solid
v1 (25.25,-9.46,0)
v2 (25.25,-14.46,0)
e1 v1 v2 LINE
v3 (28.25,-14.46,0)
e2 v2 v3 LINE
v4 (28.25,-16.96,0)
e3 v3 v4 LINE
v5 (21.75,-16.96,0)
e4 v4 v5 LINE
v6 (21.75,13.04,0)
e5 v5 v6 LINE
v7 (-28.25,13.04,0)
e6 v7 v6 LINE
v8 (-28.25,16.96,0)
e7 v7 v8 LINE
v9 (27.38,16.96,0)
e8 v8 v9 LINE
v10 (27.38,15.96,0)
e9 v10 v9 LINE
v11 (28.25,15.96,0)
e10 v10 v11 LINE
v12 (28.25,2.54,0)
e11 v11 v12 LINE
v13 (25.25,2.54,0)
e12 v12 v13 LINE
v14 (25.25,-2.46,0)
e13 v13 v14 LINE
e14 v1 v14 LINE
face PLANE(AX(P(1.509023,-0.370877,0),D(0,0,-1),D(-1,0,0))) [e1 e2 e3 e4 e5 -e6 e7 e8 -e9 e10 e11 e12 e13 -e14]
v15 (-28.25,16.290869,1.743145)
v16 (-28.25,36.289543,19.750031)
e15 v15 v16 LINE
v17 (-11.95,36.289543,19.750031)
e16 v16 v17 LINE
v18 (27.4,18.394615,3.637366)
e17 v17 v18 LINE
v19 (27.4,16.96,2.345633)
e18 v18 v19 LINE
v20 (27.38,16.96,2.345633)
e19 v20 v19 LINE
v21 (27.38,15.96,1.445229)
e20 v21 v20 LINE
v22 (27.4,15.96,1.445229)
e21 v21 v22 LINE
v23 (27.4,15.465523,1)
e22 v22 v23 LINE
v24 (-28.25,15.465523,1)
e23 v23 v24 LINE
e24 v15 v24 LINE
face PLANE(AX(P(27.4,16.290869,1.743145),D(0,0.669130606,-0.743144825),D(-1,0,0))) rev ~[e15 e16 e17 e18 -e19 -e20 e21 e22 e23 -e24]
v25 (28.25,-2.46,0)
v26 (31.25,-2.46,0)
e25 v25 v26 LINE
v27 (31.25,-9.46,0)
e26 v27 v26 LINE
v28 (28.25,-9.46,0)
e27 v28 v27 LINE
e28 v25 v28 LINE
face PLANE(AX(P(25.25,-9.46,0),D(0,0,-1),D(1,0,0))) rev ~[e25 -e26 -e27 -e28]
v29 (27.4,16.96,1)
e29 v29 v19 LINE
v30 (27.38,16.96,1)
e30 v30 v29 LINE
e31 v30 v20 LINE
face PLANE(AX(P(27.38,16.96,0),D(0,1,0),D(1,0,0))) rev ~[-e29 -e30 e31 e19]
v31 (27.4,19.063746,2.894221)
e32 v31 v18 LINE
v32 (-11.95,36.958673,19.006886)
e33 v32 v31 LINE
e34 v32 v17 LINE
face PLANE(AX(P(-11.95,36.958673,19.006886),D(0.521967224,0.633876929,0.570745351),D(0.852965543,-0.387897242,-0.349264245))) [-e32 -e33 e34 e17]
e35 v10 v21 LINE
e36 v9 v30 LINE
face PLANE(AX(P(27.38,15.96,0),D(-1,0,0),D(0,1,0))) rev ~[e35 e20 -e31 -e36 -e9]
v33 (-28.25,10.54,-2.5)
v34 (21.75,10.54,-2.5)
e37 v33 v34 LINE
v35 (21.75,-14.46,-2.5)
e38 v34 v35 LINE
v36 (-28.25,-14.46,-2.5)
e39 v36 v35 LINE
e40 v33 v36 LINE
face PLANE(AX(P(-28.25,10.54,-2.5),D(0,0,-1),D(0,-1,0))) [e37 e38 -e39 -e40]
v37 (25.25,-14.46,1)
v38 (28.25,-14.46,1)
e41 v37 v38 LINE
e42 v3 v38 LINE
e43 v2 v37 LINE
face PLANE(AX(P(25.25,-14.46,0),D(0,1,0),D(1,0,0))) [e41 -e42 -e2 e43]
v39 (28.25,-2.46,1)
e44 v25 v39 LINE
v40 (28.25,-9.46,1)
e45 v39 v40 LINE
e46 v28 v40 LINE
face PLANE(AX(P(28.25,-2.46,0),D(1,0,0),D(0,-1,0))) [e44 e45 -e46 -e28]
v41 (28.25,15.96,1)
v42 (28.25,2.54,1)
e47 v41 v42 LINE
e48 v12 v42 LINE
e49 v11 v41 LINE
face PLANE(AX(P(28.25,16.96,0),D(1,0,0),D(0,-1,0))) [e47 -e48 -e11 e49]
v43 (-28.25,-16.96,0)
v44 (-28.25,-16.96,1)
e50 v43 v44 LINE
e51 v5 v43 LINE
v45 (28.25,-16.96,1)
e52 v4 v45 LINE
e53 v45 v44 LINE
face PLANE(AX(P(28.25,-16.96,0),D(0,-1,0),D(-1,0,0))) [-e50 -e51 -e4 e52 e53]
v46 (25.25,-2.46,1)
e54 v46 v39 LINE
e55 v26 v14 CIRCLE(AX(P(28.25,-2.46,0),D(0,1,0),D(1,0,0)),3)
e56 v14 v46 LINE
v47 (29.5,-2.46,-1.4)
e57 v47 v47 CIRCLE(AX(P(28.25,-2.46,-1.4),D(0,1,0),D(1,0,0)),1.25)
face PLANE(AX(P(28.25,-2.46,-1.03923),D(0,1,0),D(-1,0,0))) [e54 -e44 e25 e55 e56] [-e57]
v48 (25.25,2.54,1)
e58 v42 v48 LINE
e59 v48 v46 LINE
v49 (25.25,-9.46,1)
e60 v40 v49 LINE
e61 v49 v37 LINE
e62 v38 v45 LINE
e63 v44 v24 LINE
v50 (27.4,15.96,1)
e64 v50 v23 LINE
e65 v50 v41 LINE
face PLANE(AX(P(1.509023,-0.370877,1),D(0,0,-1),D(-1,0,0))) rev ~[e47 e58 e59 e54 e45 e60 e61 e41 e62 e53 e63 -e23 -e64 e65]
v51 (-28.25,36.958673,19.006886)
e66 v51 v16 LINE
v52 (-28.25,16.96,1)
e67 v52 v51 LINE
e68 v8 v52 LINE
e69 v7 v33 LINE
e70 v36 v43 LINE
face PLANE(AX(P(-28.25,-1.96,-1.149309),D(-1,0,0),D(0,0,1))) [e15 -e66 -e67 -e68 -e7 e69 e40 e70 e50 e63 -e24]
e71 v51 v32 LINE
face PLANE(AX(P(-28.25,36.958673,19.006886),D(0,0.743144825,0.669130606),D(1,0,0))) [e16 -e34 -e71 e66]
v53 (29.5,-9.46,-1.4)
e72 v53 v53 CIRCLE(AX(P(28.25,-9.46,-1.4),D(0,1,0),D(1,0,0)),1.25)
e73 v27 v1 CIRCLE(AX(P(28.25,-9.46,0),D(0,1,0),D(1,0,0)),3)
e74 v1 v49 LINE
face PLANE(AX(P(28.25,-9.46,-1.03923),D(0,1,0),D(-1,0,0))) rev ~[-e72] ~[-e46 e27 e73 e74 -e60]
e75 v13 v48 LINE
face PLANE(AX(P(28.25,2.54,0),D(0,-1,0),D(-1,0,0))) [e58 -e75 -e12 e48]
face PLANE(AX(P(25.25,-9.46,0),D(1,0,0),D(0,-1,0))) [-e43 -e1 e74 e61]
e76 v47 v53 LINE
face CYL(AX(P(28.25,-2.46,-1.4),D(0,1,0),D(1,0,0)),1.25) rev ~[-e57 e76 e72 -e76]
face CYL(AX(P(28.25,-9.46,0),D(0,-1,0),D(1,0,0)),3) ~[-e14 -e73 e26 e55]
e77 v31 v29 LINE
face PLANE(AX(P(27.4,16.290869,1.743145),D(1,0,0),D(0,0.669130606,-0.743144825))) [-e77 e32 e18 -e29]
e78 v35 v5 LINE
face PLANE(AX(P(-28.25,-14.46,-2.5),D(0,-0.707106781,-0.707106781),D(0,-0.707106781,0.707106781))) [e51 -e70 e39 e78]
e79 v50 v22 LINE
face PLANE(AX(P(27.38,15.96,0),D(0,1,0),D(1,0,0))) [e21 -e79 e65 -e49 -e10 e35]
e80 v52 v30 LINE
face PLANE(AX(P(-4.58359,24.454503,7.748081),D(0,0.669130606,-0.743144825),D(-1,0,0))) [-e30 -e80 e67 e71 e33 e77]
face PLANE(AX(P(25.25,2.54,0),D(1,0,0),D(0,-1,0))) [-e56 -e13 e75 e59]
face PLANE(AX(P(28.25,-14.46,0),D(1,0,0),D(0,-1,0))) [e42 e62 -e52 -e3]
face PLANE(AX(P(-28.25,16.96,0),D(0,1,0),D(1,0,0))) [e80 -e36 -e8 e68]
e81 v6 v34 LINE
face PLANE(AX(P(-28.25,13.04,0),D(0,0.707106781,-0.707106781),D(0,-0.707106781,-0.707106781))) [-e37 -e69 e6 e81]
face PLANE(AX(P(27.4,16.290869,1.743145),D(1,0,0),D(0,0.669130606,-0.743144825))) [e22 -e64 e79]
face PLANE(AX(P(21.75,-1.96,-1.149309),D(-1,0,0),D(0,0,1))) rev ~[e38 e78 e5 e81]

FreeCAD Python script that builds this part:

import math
import FreeCAD as App
import Part
import Sketcher

doc = App.newDocument("Part")
body = doc.addObject("PartDesign::Body", "Body")

# Sketch on XY plane
sketch1 = body.newObject("Sketcher::SketchObject", "Sketch")
sketch1.AttachmentSupport = (doc.getObject("XY_Plane"), [""])
sketch1.MapMode = "FlatFace"
sketch1.addGeometry([
    Part.LineSegment(App.Vector(-28.25, 16.96, 0), App.Vector(-28.25, -16.96, 0)),  # 0
    Part.LineSegment(App.Vector(-28.25, -16.96, 0), App.Vector(28.25, -16.96, 0)),  # 1
    Part.LineSegment(App.Vector(28.25, -16.96, 0), App.Vector(28.25, -14.46, 0)),  # 2
    Part.LineSegment(App.Vector(28.25, -14.46, 0), App.Vector(25.25, -14.46, 0)),  # 3
    Part.LineSegment(App.Vector(25.25, -14.46, 0), App.Vector(25.25, -9.46, 0)),  # 4
    Part.LineSegment(App.Vector(25.25, -9.46, 0), App.Vector(28.25, -9.46, 0)),  # 5
    Part.LineSegment(App.Vector(28.25, -9.46, 0), App.Vector(28.25, -2.46, 0)),  # 6
    Part.LineSegment(App.Vector(28.25, -2.46, 0), App.Vector(25.25, -2.46, 0)),  # 7
    Part.LineSegment(App.Vector(25.25, -2.46, 0), App.Vector(25.25, 2.54, 0)),  # 8
    Part.LineSegment(App.Vector(25.25, 2.54, 0), App.Vector(28.25, 2.54, 0)),  # 9
    Part.LineSegment(App.Vector(28.25, 2.54, 0), App.Vector(28.25, 16.96, 0)),  # 10
    Part.LineSegment(App.Vector(28.25, 16.96, 0), App.Vector(-28.25, 16.96, 0)),  # 11
], False)
sketch1.addConstraint([
    Sketcher.Constraint("Coincident", 0, 2, 1, 1),
    Sketcher.Constraint("Coincident", 1, 2, 2, 1),
    Sketcher.Constraint("Coincident", 2, 2, 3, 1),
    Sketcher.Constraint("Coincident", 3, 2, 4, 1),
    Sketcher.Constraint("Coincident", 4, 2, 5, 1),
    Sketcher.Constraint("Coincident", 5, 2, 6, 1),
    Sketcher.Constraint("Coincident", 6, 2, 7, 1),
    Sketcher.Constraint("Coincident", 7, 2, 8, 1),
    Sketcher.Constraint("Coincident", 8, 2, 9, 1),
    Sketcher.Constraint("Coincident", 9, 2, 10, 1),
    Sketcher.Constraint("Coincident", 10, 2, 11, 1),
    Sketcher.Constraint("Coincident", 11, 2, 0, 1),
    Sketcher.Constraint("Vertical", 0),
    Sketcher.Constraint("Horizontal", 1),
    Sketcher.Constraint("Vertical", 2),
    Sketcher.Constraint("Horizontal", 3),
    Sketcher.Constraint("Vertical", 4),
    Sketcher.Constraint("Horizontal", 5),
    Sketcher.Constraint("Vertical", 6),
    Sketcher.Constraint("Horizontal", 7),
    Sketcher.Constraint("Vertical", 8),
    Sketcher.Constraint("Horizontal", 9),
    Sketcher.Constraint("Vertical", 10),
    Sketcher.Constraint("Horizontal", 11),
    Sketcher.Constraint("Symmetric", 0, 2, 10, 2, -1, 1),
    Sketcher.Constraint("Vertical", 2, 2, 5, 2),
    Sketcher.Constraint("Vertical", 4, 2, 7, 2),
    Sketcher.Constraint("Vertical", 6, 2, 9, 2),
    Sketcher.Constraint("Equal", 4, 8),
    Sketcher.Constraint("DistanceX", 3, 2, 3, 1, 3.0),
    Sketcher.Constraint("DistanceY", 4, 1, 4, 2, 5.0),
    Sketcher.Constraint("DistanceY", 6, 1, 6, 2, 7.0),
    Sketcher.Constraint("DistanceX", 1, 1, 1, 2, 56.5),
    Sketcher.Constraint("DistanceY", 2, 1, 2, 2, 2.5),
    Sketcher.Constraint("DistanceY", 0, 2, 0, 1, 33.92),
])
pad1 = body.newObject("PartDesign::Pad", "Pad")
pad1.Profile = sketch1
pad1.Length = 1

# Sketch on YZ plane
sketch2 = body.newObject("Sketcher::SketchObject", "Sketch001")
sketch2.AttachmentSupport = (doc.getObject("YZ_Plane"), [""])
sketch2.MapMode = "FlatFace"
sketch2.AttachmentOffset = App.Placement(App.Vector(0, 0, -28.25), App.Rotation())
sketch2.addGeometry([
    Part.LineSegment(App.Vector(13.04, 0, 0), App.Vector(10.54, -2.5, 0)),
    Part.LineSegment(App.Vector(10.54, -2.5, 0), App.Vector(-14.46, -2.5, 0)),
    Part.LineSegment(App.Vector(-14.46, -2.5, 0), App.Vector(-16.96, 0, 0)),
    Part.LineSegment(App.Vector(-16.96, 0, 0), App.Vector(13.04, 0, 0)),
], False)
sketch2.addConstraint([
    Sketcher.Constraint("Coincident", 0, 2, 1, 1),
    Sketcher.Constraint("Coincident", 1, 2, 2, 1),
    Sketcher.Constraint("Coincident", 2, 2, 3, 1),
    Sketcher.Constraint("Coincident", 3, 2, 0, 1),
    Sketcher.Constraint("Horizontal", 1),
    Sketcher.Constraint("Horizontal", 3),
    Sketcher.Constraint("PointOnObject", 2, 2, -1),
    Sketcher.Constraint("Perpendicular", 0, 2),
    Sketcher.Constraint("Equal", 0, 2),
    Sketcher.Constraint("DistanceX", 1, 2, 1, 1, 25.0),
    Sketcher.Constraint("DistanceX", 3, 1, 3, 2, 30.0),
    Sketcher.Constraint("DistanceX", -1, 1, 0, 2, 10.54),
])
pad2 = body.newObject("PartDesign::Pad", "Pad001")
pad2.Profile = sketch2
pad2.Length = 50

# Sketch on XZ plane
sketch3 = body.newObject("Sketcher::SketchObject", "Sketch002")
sketch3.AttachmentSupport = (doc.getObject("XZ_Plane"), [""])
sketch3.MapMode = "FlatFace"
sketch3.AttachmentOffset = App.Placement(App.Vector(0, 0, 9.46), App.Rotation())
sketch3.addGeometry([
    Part.LineSegment(App.Vector(31.25, 0, 0), App.Vector(25.25, 0, 0)),
    Part.ArcOfCircle(Part.Circle(App.Vector(28.25, 0, 0), App.Vector(0, 0, 1), 3), math.radians(180), math.radians(360)),
], False)
sketch3.addConstraint([
    Sketcher.Constraint("Coincident", 0, 1, 1, 2),
    Sketcher.Constraint("Coincident", 1, 1, 0, 2),
    Sketcher.Constraint("Horizontal", 0),
    Sketcher.Constraint("PointOnObject", 1, 3, -1),
    Sketcher.Constraint("PointOnObject", 0, 1, -1),
    Sketcher.Constraint("Radius", 1, 3.0),
    Sketcher.Constraint("DistanceX", -1, 1, 1, 3, 28.25),
])
pad3 = body.newObject("PartDesign::Pad", "Pad002")
pad3.Profile = sketch3
pad3.Length = 7
pad3.Reversed = True

# Sketch on XZ plane
sketch4 = body.newObject("Sketcher::SketchObject", "Sketch003")
sketch4.AttachmentSupport = (doc.getObject("XZ_Plane"), [""])
sketch4.MapMode = "FlatFace"
sketch4.AttachmentOffset = App.Placement(App.Vector(0, 0, 2.46), App.Rotation())
sketch4.addGeometry(Part.Circle(App.Vector(28.25, -1.4, 0), App.Vector(0, 0, 1), 1.25), False)
sketch4.addConstraint([
    Sketcher.Constraint("Diameter", 0, 2.5),
    Sketcher.Constraint("DistanceY", 0, 3, -1, 1, 1.4),
    Sketcher.Constraint("DistanceX", -1, 1, 0, 3, 28.25),
])
pocket1 = body.newObject("PartDesign::Pocket", "Pocket")
pocket1.Profile = sketch4
pocket1.Length = 7
pocket1.Reversed = True
body2 = doc.addObject("PartDesign::Body", "Body001")

# Sketch on an angled plane
sketch5 = body2.newObject("Sketcher::SketchObject", "Sketch004")
sketch5.Placement = App.Placement(App.Vector(0, 7.096338, -7.881281), App.Rotation(App.Vector(-1, 0, 0), App.Vector(0, 0.743144825, 0.669130606), App.Vector(0, 0.669130606, -0.743144825), "ZXY"))
sketch5.addGeometry([
    Part.LineSegment(App.Vector(28.25, 13.272867, 0), App.Vector(28.25, 40.183736, 0)),  # 0
    Part.LineSegment(App.Vector(28.25, 40.183736, 0), App.Vector(11.95, 40.183736, 0)),  # 1
    Part.LineSegment(App.Vector(11.95, 40.183736, 0), App.Vector(-27.4, 16.103736, 0)),  # 2
    Part.LineSegment(App.Vector(-27.4, 16.103736, 0), App.Vector(-27.4, 13.272867, 0)),  # 3
    Part.LineSegment(App.Vector(-27.4, 13.272867, 0), App.Vector(28.25, 13.272867, 0)),  # 4
], False)
sketch5.addConstraint([
    Sketcher.Constraint("Coincident", 0, 2, 1, 1),
    Sketcher.Constraint("Coincident", 1, 2, 2, 1),
    Sketcher.Constraint("Coincident", 2, 2, 3, 1),
    Sketcher.Constraint("Coincident", 3, 2, 4, 1),
    Sketcher.Constraint("Coincident", 4, 2, 0, 1),
    Sketcher.Constraint("Vertical", 0),
    Sketcher.Constraint("Horizontal", 1),
    Sketcher.Constraint("Vertical", 3),
    Sketcher.Constraint("Horizontal", 4),
    Sketcher.Constraint("DistanceX", 1, 2, 1, 1, 16.3),
    Sketcher.Constraint("DistanceX", 4, 1, 4, 2, 55.65),
    Sketcher.Constraint("DistanceX", 2, 2, -1, 1, 27.4),
    Sketcher.Constraint("DistanceY", 2, 2, 1, 2, 24.08),
    Sketcher.Constraint("DistanceY", 0, 1, 0, 2, 26.910869),
    Sketcher.Constraint("DistanceY", -1, 1, 0, 2, 40.183736),
])
pad4 = body2.newObject("PartDesign::Pad", "Pad003")
pad4.Profile = sketch5
pad4.Length = 1
pad4.Reversed = True
body.AllowCompound = True
doc.recompute()

boolean = body.newObject("PartDesign::Boolean", "Boolean")
boolean.Type = "Fuse"
boolean.addObjects([body2])

# Sketch on an angled plane
sketch6 = body.newObject("Sketcher::SketchObject", "Sketch005")
sketch6.Placement = App.Placement(App.Vector(0, 9.863662, 8.881281), App.Rotation(App.Vector(-1, 0, 0), App.Vector(0, 0.669130606, -0.743144825), App.Vector(0, -0.743144825, -0.669130606), "ZXY"))
sketch6.addGeometry([
    Part.LineSegment(App.Vector(-27.4, 10.60531, 0), App.Vector(-27.4, 9.60531, 0)),
    Part.LineSegment(App.Vector(-27.4, 9.60531, 0), App.Vector(28.25, 9.60531, 0)),
    Part.LineSegment(App.Vector(28.25, 9.60531, 0), App.Vector(28.25, 10.60531, 0)),
    Part.LineSegment(App.Vector(28.25, 10.60531, 0), App.Vector(-27.4, 10.60531, 0)),
], False)
sketch6.addConstraint([
    Sketcher.Constraint("Coincident", 0, 2, 1, 1),
    Sketcher.Constraint("Coincident", 1, 2, 2, 1),
    Sketcher.Constraint("Coincident", 2, 2, 3, 1),
    Sketcher.Constraint("Coincident", 3, 2, 0, 1),
    Sketcher.Constraint("Vertical", 0),
    Sketcher.Constraint("Horizontal", 1),
    Sketcher.Constraint("Vertical", 2),
    Sketcher.Constraint("Horizontal", 3),
    Sketcher.Constraint("DistanceY", 0, 2, 0, 1, 1.0),
    Sketcher.Constraint("DistanceX", 1, 1, 1, 2, 55.65),
    Sketcher.Constraint("DistanceX", 0, 2, -1, 1, 27.4),
    Sketcher.Constraint("DistanceY", -1, 1, 0, 2, 9.60531),
])
pad5 = body.newObject("PartDesign::Pad", "Pad004")
pad5.Profile = sketch6
pad5.Length = 1.110613

# Sketch on XY plane
sketch7 = body.newObject("Sketcher::SketchObject", "Sketch006")
sketch7.AttachmentSupport = (doc.getObject("XY_Plane"), [""])
sketch7.MapMode = "FlatFace"
sketch7.addGeometry([
    Part.LineSegment(App.Vector(27.38, 16.96, 0), App.Vector(27.38, 15.96, 0)),
    Part.LineSegment(App.Vector(27.38, 15.96, 0), App.Vector(28.25, 15.96, 0)),
    Part.LineSegment(App.Vector(28.25, 15.96, 0), App.Vector(28.25, 16.96, 0)),
    Part.LineSegment(App.Vector(28.25, 16.96, 0), App.Vector(27.38, 16.96, 0)),
], False)
sketch7.addConstraint([
    Sketcher.Constraint("Coincident", 0, 2, 1, 1),
    Sketcher.Constraint("Coincident", 1, 2, 2, 1),
    Sketcher.Constraint("Coincident", 2, 2, 3, 1),
    Sketcher.Constraint("Coincident", 3, 2, 0, 1),
    Sketcher.Constraint("Vertical", 0),
    Sketcher.Constraint("Horizontal", 1),
    Sketcher.Constraint("Vertical", 2),
    Sketcher.Constraint("Horizontal", 3),
    Sketcher.Constraint("DistanceY", 0, 2, 0, 1, 1.0),
    Sketcher.Constraint("DistanceX", 1, 1, 1, 2, 0.87),
    Sketcher.Constraint("DistanceX", -1, 1, 0, 2, 27.38),
    Sketcher.Constraint("DistanceY", -1, 1, 0, 2, 15.96),
])
pocket2 = body.newObject("PartDesign::Pocket", "Pocket001")
pocket2.Profile = sketch7
pocket2.Length = 2.345633
pocket2.Reversed = True

doc.recompute()
